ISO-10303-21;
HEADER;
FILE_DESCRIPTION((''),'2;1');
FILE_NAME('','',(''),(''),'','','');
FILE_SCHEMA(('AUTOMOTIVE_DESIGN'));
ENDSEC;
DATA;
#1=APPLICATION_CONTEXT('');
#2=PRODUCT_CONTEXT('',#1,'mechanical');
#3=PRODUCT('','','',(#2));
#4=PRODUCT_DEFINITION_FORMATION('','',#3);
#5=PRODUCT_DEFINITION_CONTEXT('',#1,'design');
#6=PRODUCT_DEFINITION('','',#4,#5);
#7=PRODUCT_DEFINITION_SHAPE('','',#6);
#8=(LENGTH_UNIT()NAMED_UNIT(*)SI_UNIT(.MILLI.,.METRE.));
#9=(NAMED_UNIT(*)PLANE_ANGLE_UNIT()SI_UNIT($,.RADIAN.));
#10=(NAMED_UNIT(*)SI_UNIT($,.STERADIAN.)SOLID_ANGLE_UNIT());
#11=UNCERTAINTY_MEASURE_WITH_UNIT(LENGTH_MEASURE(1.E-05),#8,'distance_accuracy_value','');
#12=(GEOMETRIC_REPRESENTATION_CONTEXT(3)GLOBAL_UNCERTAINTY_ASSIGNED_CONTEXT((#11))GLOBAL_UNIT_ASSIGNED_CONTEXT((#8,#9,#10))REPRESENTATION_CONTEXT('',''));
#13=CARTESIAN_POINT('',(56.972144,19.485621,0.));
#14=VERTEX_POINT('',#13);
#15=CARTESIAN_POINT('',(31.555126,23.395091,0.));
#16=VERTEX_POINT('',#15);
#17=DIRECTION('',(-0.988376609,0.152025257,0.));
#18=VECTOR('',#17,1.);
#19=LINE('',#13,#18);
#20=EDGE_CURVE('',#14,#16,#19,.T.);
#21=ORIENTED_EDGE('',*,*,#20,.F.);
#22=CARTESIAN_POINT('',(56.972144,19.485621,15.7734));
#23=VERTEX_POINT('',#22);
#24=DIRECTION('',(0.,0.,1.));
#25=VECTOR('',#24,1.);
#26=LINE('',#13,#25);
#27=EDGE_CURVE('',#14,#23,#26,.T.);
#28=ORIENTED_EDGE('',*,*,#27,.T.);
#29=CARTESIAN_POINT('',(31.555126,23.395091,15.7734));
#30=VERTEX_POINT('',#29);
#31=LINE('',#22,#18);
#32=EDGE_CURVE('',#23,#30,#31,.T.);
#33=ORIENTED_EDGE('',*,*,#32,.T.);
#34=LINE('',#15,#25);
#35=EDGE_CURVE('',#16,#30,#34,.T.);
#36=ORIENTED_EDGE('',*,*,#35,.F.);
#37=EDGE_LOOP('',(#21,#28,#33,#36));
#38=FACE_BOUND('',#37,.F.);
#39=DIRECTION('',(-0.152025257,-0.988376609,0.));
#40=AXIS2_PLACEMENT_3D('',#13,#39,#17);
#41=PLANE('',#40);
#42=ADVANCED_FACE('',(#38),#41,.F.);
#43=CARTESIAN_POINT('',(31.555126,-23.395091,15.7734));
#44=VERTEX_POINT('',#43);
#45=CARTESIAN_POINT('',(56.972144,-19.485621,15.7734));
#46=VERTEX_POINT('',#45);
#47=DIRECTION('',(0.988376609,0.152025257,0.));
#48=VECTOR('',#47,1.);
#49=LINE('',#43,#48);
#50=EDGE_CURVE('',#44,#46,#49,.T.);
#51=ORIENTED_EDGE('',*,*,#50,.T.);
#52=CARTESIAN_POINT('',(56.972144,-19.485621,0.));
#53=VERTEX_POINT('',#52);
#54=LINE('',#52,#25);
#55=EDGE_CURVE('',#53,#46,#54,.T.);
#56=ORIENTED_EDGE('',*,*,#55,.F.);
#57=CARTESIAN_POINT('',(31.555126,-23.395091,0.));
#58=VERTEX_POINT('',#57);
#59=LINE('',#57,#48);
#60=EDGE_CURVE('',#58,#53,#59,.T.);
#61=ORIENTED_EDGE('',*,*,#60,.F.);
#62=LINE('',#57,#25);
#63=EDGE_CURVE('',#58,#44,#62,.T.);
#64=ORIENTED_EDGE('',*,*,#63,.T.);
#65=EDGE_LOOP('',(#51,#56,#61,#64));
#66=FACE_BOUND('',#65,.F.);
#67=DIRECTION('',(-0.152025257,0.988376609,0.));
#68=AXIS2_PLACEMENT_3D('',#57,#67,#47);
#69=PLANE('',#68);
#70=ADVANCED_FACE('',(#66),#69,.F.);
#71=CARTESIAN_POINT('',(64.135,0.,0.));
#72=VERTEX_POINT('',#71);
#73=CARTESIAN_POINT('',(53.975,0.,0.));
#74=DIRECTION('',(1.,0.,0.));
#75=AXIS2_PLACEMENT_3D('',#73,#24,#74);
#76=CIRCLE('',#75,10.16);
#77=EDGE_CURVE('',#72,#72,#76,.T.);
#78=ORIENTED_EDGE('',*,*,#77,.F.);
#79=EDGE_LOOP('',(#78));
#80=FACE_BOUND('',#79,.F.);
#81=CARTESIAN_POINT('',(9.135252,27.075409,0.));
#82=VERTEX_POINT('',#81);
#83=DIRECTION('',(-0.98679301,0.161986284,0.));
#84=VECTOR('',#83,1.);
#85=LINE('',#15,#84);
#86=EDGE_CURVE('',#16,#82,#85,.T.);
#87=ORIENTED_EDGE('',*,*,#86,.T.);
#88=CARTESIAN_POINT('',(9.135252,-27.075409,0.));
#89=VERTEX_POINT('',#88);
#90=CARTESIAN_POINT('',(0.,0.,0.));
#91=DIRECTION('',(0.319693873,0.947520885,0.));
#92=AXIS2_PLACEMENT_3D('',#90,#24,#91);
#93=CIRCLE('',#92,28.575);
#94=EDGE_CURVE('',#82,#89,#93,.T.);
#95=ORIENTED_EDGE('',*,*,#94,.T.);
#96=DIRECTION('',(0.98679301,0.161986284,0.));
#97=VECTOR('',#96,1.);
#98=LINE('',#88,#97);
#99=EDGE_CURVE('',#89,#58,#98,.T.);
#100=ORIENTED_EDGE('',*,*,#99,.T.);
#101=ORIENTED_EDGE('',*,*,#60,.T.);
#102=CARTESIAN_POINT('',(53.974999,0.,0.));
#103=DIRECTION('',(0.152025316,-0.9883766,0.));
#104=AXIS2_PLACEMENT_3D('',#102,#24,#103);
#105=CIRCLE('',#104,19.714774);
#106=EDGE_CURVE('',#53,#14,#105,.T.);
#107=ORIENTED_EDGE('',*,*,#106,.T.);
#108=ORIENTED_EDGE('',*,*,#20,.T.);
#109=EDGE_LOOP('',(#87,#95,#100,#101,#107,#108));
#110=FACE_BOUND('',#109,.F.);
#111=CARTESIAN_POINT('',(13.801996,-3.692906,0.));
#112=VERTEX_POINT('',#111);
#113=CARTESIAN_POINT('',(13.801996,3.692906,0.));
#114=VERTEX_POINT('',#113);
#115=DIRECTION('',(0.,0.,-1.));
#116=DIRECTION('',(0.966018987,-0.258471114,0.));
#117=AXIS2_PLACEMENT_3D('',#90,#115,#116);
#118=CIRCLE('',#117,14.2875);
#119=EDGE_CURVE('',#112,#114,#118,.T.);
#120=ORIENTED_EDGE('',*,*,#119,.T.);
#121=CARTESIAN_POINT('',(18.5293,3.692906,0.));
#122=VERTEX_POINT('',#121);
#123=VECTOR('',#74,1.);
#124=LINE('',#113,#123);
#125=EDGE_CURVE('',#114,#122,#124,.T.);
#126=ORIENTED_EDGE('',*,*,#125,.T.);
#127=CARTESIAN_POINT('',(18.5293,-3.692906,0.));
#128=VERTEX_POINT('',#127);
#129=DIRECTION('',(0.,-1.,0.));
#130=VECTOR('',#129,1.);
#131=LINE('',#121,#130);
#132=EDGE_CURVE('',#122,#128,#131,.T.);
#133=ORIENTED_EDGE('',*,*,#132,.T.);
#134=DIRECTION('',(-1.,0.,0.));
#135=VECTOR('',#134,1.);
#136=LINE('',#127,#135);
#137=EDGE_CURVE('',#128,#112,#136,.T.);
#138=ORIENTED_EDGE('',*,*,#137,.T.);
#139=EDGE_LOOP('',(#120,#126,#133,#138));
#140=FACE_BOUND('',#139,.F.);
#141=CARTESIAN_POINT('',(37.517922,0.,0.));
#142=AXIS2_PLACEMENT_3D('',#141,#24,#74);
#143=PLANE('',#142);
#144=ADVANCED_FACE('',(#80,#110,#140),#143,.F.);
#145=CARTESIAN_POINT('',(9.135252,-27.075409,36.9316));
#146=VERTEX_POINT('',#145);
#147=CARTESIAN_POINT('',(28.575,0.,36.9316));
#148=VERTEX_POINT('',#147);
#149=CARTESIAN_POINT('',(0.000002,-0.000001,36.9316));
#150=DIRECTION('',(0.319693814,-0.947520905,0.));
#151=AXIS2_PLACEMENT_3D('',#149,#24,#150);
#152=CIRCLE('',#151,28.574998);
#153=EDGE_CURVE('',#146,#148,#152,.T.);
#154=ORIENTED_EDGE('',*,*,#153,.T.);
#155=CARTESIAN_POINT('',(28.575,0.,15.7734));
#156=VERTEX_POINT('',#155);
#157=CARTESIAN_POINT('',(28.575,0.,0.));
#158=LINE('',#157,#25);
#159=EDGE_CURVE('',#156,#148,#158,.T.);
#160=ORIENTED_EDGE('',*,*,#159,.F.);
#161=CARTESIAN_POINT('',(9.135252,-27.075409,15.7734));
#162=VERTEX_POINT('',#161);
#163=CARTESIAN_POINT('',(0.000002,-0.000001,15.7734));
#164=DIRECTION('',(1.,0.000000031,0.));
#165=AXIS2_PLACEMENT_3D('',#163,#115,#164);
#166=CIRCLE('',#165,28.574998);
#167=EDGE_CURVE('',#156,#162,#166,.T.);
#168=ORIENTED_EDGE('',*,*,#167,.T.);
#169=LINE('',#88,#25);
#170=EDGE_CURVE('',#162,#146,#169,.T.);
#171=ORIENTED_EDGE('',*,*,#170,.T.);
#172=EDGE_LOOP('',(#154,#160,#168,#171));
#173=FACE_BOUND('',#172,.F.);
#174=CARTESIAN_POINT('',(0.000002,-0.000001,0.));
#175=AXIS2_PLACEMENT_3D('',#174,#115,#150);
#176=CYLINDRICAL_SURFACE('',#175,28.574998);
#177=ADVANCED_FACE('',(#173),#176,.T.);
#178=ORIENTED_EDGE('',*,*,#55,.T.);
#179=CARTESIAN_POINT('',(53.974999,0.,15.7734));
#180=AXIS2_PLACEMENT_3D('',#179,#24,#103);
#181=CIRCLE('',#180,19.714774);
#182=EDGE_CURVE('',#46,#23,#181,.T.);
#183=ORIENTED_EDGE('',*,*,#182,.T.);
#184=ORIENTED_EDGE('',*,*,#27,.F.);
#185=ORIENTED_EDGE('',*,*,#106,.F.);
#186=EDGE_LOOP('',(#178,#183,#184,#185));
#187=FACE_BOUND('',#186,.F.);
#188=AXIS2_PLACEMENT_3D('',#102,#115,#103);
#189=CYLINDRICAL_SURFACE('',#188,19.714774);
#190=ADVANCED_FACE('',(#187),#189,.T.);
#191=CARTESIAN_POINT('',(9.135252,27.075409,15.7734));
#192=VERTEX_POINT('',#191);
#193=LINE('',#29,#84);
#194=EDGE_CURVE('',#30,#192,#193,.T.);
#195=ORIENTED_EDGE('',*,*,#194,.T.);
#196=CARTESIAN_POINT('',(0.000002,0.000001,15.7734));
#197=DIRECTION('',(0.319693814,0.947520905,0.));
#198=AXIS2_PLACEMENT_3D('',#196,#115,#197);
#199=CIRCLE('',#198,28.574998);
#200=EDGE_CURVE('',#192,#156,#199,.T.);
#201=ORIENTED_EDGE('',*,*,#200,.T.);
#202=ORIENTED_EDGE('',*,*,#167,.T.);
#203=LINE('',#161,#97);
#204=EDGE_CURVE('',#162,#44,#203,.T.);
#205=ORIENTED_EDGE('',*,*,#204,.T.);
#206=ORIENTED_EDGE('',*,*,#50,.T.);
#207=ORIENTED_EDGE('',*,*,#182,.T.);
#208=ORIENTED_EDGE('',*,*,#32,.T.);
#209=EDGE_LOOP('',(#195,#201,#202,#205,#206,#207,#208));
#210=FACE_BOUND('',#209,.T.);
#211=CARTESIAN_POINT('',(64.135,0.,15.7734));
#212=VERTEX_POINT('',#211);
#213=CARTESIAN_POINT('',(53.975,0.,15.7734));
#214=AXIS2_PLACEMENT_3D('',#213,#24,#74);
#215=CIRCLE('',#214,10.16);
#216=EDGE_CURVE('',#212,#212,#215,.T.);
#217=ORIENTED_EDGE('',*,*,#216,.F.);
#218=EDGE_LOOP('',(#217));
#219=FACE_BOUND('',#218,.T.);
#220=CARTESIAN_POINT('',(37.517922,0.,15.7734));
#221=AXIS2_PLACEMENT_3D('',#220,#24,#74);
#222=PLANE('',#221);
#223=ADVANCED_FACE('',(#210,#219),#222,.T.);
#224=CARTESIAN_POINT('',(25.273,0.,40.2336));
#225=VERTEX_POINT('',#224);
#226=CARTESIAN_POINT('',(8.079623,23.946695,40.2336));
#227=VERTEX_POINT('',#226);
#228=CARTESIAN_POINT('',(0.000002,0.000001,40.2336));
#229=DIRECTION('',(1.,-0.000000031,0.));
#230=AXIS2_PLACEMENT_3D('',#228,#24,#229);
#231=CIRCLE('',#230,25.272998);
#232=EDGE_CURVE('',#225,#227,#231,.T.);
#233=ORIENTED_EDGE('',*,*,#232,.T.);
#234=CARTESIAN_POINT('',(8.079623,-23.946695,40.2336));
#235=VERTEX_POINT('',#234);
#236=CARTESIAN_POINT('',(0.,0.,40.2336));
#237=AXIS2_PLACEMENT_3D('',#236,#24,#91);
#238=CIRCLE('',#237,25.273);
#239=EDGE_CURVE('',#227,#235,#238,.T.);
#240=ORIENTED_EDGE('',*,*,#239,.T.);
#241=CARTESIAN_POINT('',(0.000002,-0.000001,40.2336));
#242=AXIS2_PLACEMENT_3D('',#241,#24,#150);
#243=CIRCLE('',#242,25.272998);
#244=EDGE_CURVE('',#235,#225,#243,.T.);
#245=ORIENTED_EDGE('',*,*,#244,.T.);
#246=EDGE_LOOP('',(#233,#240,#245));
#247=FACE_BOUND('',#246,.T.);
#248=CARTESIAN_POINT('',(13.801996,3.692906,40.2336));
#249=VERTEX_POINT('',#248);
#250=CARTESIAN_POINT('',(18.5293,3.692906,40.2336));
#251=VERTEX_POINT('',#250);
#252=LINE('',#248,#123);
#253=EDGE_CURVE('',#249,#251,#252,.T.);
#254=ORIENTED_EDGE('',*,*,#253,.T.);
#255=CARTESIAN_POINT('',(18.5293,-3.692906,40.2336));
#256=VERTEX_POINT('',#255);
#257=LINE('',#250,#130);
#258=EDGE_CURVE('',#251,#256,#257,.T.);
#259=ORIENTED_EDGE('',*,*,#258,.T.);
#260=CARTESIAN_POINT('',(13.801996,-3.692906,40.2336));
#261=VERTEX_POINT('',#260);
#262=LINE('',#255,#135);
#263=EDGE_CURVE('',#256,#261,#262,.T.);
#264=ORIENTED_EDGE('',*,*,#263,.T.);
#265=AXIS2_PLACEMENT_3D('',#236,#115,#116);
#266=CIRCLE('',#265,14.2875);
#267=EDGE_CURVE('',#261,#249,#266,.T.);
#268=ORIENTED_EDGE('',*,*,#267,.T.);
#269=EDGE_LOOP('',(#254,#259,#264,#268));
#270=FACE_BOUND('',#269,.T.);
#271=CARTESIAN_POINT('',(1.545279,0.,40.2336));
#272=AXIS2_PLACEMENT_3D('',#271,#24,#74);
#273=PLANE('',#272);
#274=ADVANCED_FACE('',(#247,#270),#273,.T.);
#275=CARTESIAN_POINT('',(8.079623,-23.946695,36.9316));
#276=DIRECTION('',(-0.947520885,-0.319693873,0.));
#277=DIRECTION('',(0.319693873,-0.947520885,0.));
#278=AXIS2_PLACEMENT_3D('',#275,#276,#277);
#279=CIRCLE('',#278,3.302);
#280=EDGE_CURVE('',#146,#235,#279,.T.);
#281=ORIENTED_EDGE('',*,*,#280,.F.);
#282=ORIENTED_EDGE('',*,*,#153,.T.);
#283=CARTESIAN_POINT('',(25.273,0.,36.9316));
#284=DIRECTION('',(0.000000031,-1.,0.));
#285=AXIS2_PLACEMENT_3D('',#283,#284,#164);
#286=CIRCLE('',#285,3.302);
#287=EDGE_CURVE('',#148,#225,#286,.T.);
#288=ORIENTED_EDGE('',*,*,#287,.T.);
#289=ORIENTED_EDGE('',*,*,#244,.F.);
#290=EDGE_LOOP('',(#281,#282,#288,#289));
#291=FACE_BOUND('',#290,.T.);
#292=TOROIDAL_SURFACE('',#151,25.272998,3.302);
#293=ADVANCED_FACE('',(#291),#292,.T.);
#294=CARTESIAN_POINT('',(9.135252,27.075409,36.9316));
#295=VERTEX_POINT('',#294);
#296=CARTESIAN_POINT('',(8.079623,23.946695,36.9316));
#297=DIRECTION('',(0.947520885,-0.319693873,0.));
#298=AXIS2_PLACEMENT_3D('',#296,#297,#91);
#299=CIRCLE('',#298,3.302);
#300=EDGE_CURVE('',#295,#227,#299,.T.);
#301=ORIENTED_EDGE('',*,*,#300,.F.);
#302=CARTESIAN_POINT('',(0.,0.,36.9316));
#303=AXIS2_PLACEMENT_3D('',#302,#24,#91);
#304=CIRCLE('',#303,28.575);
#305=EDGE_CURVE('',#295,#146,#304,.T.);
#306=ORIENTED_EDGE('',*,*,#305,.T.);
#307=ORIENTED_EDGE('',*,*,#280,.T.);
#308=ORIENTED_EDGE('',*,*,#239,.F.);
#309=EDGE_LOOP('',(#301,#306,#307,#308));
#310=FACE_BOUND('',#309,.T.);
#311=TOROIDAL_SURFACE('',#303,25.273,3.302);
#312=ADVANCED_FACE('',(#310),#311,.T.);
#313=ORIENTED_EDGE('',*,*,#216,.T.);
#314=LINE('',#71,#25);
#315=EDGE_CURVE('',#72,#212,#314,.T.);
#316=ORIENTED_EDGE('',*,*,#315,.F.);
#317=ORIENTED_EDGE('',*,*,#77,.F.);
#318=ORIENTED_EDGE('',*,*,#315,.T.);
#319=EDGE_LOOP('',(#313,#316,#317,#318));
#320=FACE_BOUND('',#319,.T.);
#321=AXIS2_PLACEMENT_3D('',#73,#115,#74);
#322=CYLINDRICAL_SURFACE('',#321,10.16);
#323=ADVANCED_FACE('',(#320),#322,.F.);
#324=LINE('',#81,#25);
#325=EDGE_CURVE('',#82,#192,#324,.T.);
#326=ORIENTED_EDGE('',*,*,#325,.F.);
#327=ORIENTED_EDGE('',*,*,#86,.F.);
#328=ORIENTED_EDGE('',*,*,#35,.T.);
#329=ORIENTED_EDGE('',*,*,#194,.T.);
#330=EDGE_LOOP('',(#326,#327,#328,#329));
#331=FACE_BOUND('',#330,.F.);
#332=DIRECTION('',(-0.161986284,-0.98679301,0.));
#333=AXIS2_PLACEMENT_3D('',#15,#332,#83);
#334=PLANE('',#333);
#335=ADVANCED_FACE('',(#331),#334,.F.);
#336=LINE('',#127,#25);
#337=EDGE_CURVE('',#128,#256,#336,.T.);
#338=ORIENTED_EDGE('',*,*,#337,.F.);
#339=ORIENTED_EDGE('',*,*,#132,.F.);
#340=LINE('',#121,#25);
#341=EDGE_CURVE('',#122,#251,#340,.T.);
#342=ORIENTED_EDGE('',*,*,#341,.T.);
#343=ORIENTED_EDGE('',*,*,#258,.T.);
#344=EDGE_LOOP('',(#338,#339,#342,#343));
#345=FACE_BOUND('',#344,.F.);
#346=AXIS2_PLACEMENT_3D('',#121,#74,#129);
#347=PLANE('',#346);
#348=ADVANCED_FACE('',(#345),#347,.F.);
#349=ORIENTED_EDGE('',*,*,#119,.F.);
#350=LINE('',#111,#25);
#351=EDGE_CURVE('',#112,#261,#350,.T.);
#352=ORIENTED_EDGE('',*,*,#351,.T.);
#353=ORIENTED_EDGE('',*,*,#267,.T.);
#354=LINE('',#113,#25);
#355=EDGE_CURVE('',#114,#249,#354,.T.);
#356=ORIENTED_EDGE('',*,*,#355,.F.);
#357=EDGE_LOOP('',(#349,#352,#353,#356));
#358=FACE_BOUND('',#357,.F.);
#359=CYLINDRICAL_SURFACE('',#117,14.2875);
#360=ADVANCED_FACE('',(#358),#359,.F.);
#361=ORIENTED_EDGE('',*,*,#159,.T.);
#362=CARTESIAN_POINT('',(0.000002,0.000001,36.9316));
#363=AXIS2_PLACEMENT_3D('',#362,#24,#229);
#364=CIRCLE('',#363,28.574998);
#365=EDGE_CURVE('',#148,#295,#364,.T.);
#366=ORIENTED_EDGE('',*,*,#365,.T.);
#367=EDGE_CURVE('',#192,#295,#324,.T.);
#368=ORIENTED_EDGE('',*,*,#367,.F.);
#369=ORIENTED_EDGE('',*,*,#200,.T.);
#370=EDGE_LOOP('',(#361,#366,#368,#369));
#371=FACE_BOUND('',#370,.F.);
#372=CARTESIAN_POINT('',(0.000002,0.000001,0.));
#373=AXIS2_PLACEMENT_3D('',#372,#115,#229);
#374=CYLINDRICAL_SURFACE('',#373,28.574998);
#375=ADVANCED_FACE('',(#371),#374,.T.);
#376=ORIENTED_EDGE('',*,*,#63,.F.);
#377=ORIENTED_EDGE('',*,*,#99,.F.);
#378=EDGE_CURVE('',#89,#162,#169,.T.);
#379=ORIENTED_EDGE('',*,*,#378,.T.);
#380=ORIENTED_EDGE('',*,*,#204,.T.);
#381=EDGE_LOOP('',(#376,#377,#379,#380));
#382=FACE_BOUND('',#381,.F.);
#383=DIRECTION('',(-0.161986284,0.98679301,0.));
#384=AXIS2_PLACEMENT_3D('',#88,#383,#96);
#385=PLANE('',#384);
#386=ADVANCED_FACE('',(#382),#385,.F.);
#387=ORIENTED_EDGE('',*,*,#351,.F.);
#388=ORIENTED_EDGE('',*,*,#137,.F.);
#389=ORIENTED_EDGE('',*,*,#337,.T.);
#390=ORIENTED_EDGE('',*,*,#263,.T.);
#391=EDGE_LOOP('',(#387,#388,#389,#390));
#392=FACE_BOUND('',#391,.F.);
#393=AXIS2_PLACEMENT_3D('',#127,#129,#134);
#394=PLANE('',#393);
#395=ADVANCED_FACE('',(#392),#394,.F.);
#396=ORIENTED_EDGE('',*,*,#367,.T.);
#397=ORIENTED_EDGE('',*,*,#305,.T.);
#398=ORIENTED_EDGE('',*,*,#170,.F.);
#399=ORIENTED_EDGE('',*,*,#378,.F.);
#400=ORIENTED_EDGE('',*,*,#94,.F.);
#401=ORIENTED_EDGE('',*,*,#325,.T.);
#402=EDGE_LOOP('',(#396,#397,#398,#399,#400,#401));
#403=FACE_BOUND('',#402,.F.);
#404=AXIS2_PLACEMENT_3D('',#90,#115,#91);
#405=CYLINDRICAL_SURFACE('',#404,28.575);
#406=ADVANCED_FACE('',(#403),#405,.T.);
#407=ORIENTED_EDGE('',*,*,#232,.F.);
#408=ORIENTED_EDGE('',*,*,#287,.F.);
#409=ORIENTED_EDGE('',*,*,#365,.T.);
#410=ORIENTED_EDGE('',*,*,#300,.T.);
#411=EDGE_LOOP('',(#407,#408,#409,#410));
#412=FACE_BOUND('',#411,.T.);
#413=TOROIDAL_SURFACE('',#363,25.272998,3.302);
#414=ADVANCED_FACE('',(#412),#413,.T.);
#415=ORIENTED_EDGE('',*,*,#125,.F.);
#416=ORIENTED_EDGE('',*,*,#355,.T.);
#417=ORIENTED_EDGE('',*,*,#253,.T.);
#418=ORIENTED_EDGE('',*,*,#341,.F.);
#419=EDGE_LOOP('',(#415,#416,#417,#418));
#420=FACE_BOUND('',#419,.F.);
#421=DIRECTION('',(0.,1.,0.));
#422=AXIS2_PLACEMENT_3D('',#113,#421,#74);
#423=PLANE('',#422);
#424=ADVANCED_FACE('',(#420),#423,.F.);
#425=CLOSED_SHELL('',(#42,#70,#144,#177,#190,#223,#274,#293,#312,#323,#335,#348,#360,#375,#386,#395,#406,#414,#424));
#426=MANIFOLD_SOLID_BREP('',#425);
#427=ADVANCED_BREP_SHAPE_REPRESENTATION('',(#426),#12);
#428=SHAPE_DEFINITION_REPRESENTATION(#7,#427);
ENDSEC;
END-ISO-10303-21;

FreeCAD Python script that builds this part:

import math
import FreeCAD as App
import Part
import Sketcher
Q = App.Units.Quantity


def edges_at(feature, points):
    """Names of the edges that pass closest to the given points."""
    edges = feature.Shape.Edges
    near = lambda p: min(range(len(edges)), key=lambda i: edges[i].distToShape(Part.Vertex(*p))[0])
    return sorted({f"Edge{near(p) + 1}" for p in points})

doc = App.newDocument("Part")
body = doc.addObject("PartDesign::Body", "Body")

# Sketch on XY plane
sketch1 = body.newObject("Sketcher::SketchObject", "Sketch")
sketch1.AttachmentSupport = (doc.getObject("XY_Plane"), [""])
sketch1.MapMode = "FlatFace"
sketch1.addGeometry([
    Part.ArcOfCircle(Part.Circle(App.Vector(0, 0, 0), App.Vector(0, 0, 1), 28.6), math.radians(-71), math.radians(0)),  # 0
    Part.ArcOfCircle(Part.Circle(App.Vector(0, 0, 0), App.Vector(0, 0, 1), 28.6), math.radians(0), math.radians(71)),  # 1
    Part.ArcOfCircle(Part.Circle(App.Vector(0, 0, 0), App.Vector(0, 0, 1), 28.6), math.radians(71), math.radians(289)),  # 2
    Part.LineSegment(App.Vector(18.5, -3.7, 0), App.Vector(13.8, -3.7, 0)),  # 3
    Part.ArcOfCircle(Part.Circle(App.Vector(0, 0, 0), App.Vector(0, 0, 1), 14.3), math.radians(15), math.radians(345)),  # 4
    Part.LineSegment(App.Vector(13.8, 3.7, 0), App.Vector(18.5, 3.7, 0)),  # 5
    Part.LineSegment(App.Vector(18.5, 3.7, 0), App.Vector(18.5, -3.7, 0)),  # 6
], False)
sketch1.addConstraint([
    Sketcher.Constraint("Tangent", 0, 2, 1, 1),
    Sketcher.Constraint("Tangent", 1, 2, 2, 1),
    Sketcher.Constraint("Tangent", 2, 2, 0, 1),
    Sketcher.Constraint("Coincident", 3, 2, 4, 2),
    Sketcher.Constraint("Coincident", 4, 1, 5, 1),
    Sketcher.Constraint("Coincident", 5, 2, 6, 1),
    Sketcher.Constraint("Coincident", 6, 2, 3, 1),
    Sketcher.Constraint("Horizontal", 3),
    Sketcher.Constraint("Horizontal", 5),
    Sketcher.Constraint("Vertical", 6),
    Sketcher.Constraint("Coincident", 0, 3, -1, 1),
    Sketcher.Constraint("Coincident", 4, 3, -1, 1),
    Sketcher.Constraint("PointOnObject", 0, 2, -1),
    Sketcher.Constraint("Vertical", 1, 2, 2, 2),
    Sketcher.Constraint("Vertical", 3, 2, 4, 1),
    Sketcher.Constraint("Radius", 0, Q("1.1249999 in")),
    Sketcher.Constraint("Radius", 4, Q("0.5625 in")),
    Sketcher.Constraint("DistanceX", -1, 1, 5, 2, Q("0.7295 in")),
    Sketcher.Constraint("DistanceY", 6, 2, 6, 1, Q("7.385812 mm")),
    Sketcher.Constraint("DistanceX", -1, 1, 1, 2, Q("9.135252 mm")),
])
pad1 = body.newObject("PartDesign::Pad", "Pad")
pad1.Profile = sketch1
pad1.Length = Q("1.584 in")

# Sketch on XY plane
sketch2 = body.newObject("Sketcher::SketchObject", "Sketch001")
sketch2.AttachmentSupport = (doc.getObject("XY_Plane"), [""])
sketch2.MapMode = "FlatFace"
sketch2.addGeometry([
    Part.ArcOfCircle(Part.Circle(App.Vector(0.000002, 0.000001, 0), App.Vector(0, 0, 1), 28.574998), math.radians(-0.000002), math.radians(71.355591)),  # 0
    Part.ArcOfCircle(Part.Circle(App.Vector(0.000002, -0.000001, 0), App.Vector(0, 0, 1), 28.574998), math.radians(-71.355591), math.radians(0.000002)),  # 1
    Part.LineSegment(App.Vector(9.135252, -27.075409, 0), App.Vector(31.555126, -23.395091, 0)),  # 2
    Part.LineSegment(App.Vector(31.555126, -23.395091, 0), App.Vector(56.972144, -19.485621, 0)),  # 3
    Part.ArcOfCircle(Part.Circle(App.Vector(53.974999, 0, 0), App.Vector(0, 0, 1), 19.714774), math.radians(-81.255685), math.radians(81.255685)),  # 4
    Part.LineSegment(App.Vector(56.972144, 19.485621, 0), App.Vector(31.555126, 23.395091, 0)),  # 5
    Part.LineSegment(App.Vector(31.555126, 23.395091, 0), App.Vector(9.135252, 27.075409, 0)),  # 6
    Part.Circle(App.Vector(53.975, 0, 0), App.Vector(0, 0, 1), 10.16),  # 7
], False)
sketch2.addConstraint([
    Sketcher.Constraint("Coincident", 0, 1, 1, 2),
    Sketcher.Constraint("Coincident", 1, 1, 2, 1),
    Sketcher.Constraint("Coincident", 2, 2, 3, 1),
    Sketcher.Constraint("Coincident", 3, 2, 4, 1),
    Sketcher.Constraint("Coincident", 4, 2, 5, 1),
    Sketcher.Constraint("Coincident", 5, 2, 6, 1),
    Sketcher.Constraint("Coincident", 6, 2, 0, 2),
    Sketcher.Constraint("Coincident", 0, 3, -1, 1),
    Sketcher.Constraint("Coincident", 1, 3, -1, 1),
    Sketcher.Constraint("Coincident", 7, 3, 4, 3),
    Sketcher.Constraint("PointOnObject", 4, 3, -1),
    Sketcher.Constraint("PointOnObject", 0, 1, -1),
    Sketcher.Constraint("Diameter", 7, Q("0.8 in")),
    Sketcher.Constraint("Radius", 0, Q("1.1249999 in")),
    Sketcher.Constraint("DistanceX", 0, 1, 4, 3, Q("1 in")),
    Sketcher.Constraint("Radius", 4, Q("19.714774 mm")),
    Sketcher.Constraint("DistanceX", -1, 1, 1, 1, Q("9.135252 mm")),
    Sketcher.Constraint("DistanceY", 2, 2, -1, 1, Q("23.395091 mm")),
    Sketcher.Constraint("DistanceY", 3, 2, -1, 1, Q("19.485621 mm")),
    Sketcher.Constraint("DistanceY", -1, 1, 4, 2, Q("19.485621 mm")),
    Sketcher.Constraint("DistanceY", -1, 1, 5, 2, Q("23.395091 mm")),
    Sketcher.Constraint("DistanceY", -1, 1, 6, 2, Q("27.075409 mm")),
    Sketcher.Constraint("DistanceX", 2, 2, 4, 2, Q("25.417018 mm")),
    Sketcher.Constraint("DistanceX", 5, 2, 4, 2, Q("25.417018 mm")),
])
pad2 = body.newObject("PartDesign::Pad", "Pad001")
pad2.Profile = sketch2
pad2.Length = Q("0.621 in")
doc.recompute()

fillet = body.newObject("PartDesign::Fillet", "Fillet")
fillet.Base = (pad2, edges_at(pad2, [(-28.575, 0, 40.234)]))
fillet.Radius = Q("0.13 in")

doc.recompute()
